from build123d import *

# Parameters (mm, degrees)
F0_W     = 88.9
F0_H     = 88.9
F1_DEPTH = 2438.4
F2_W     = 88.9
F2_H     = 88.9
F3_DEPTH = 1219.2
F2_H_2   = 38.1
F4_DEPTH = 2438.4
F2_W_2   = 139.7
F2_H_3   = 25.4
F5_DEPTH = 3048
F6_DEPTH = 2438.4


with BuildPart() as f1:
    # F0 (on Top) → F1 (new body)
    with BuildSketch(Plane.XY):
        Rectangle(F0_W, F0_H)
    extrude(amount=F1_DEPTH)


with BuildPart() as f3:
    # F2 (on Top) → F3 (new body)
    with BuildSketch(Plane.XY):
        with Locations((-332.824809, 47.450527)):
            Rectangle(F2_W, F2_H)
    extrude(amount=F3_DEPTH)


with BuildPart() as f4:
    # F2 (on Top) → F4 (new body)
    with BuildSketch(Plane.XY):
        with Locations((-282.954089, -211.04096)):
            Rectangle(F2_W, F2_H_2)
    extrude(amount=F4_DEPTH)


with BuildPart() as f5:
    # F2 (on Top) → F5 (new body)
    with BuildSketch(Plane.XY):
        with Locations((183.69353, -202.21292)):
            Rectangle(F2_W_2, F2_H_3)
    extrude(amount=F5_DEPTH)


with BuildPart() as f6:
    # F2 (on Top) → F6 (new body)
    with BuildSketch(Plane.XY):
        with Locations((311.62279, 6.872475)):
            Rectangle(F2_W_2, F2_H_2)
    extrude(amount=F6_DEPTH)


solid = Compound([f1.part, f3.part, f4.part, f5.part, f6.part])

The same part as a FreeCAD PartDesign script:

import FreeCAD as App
import Part
import Sketcher
Q = App.Units.Quantity


def add_polygon(sketch, points):
    """Adds a closed chain of lines whose ends are joined by coincident constraints."""
    first, n = sketch.GeometryCount, len(points)
    for a, b in zip(points, points[1:] + points[:1]):
        sketch.addGeometry(Part.LineSegment(App.Vector(*a, 0), App.Vector(*b, 0)), False)
    for i in range(n):
        sketch.addConstraint(Sketcher.Constraint("Coincident", first + i, 2, first + (i + 1) % n, 1))

doc = App.newDocument("Part")
params = doc.addObject("Spreadsheet::Sheet", "Params")
for row, (alias, value) in enumerate([
    ("sketch1_width", "3.5 in"),
    ("pad1_length", "96 in"),
    ("sketch2_width", "3.5 in"),
    ("pad2_length", "48 in"),
    ("sketch3_width", "3.5 in"),
    ("sketch3_height", "1.5 in"),
    ("pad3_length", "96 in"),
    ("sketch4_height", "1 in"),
    ("sketch4_width", "5.5 in"),
    ("pad4_length", "120 in"),
    ("sketch5_width", "5.5 in"),
    ("sketch5_height", "1.5 in"),
    ("pad5_length", "96 in"),
], start=1):
    params.set(f"A{row}", alias)
    params.set(f"B{row}", "=" + value)
    params.setAlias(f"B{row}", alias)

body = doc.addObject("PartDesign::Body", "Body")

# Sketch on XY plane
sketch1 = body.newObject("Sketcher::SketchObject", "Sketch")
sketch1.AttachmentSupport = (doc.getObject("XY_Plane"), [""])
sketch1.MapMode = "FlatFace"
add_polygon(sketch1, [(-44.45, 44.45), (-44.45, -44.45), (44.45, -44.45), (44.45, 44.45)])  # lines 0-3
sketch1.addConstraint([
    Sketcher.Constraint("Vertical", 0),
    Sketcher.Constraint("Horizontal", 1),
    Sketcher.Constraint("Vertical", 2),
    Sketcher.Constraint("Horizontal", 3),
    Sketcher.Constraint("Symmetric", 0, 2, 2, 2, -1, 1),
    Sketcher.Constraint("Equal", 3, 0),
    Sketcher.Constraint("DistanceX", 1, 1, 1, 2, Q("3.5 in")),
])
sketch1.setExpression("Constraints[10]", "Params.sketch1_width")
pad1 = body.newObject("PartDesign::Pad", "Pad")
pad1.Profile = sketch1
pad1.setExpression("Length", "Params.pad1_length")
body2 = doc.addObject("PartDesign::Body", "Body001")

# Sketch on XY plane
sketch2 = body2.newObject("Sketcher::SketchObject", "Sketch001")
sketch2.AttachmentSupport = (doc.getObject("XY_Plane001"), [""])
sketch2.MapMode = "FlatFace"
add_polygon(sketch2, [(-377.274809, 91.900527), (-377.274809, 3.000527), (-288.374809, 3.000527), (-288.374809, 91.900527)])  # lines 0-3
sketch2.addConstraint([
    Sketcher.Constraint("Vertical", 0),
    Sketcher.Constraint("Horizontal", 1),
    Sketcher.Constraint("Vertical", 2),
    Sketcher.Constraint("Horizontal", 3),
    Sketcher.Constraint("Equal", 3, 0),
    Sketcher.Constraint("DistanceX", 1, 1, 1, 2, Q("3.5 in")),
    Sketcher.Constraint("DistanceX", 0, 2, -1, 1, Q("377.274809 mm")),
    Sketcher.Constraint("DistanceY", -1, 1, 0, 2, Q("3.000527 mm")),
])
sketch2.setExpression("Constraints[9]", "Params.sketch2_width")
pad2 = body2.newObject("PartDesign::Pad", "Pad001")
pad2.Profile = sketch2
pad2.setExpression("Length", "Params.pad2_length")
body3 = doc.addObject("PartDesign::Body", "Body002")

# Sketch on XY plane
sketch3 = body3.newObject("Sketcher::SketchObject", "Sketch002")
sketch3.AttachmentSupport = (doc.getObject("XY_Plane002"), [""])
sketch3.MapMode = "FlatFace"
add_polygon(sketch3, [(-327.404089, -191.99096), (-327.404089, -230.09096), (-238.504089, -230.09096), (-238.504089, -191.99096)])  # lines 0-3
sketch3.addConstraint([
    Sketcher.Constraint("Vertical", 0),
    Sketcher.Constraint("Horizontal", 1),
    Sketcher.Constraint("Vertical", 2),
    Sketcher.Constraint("Horizontal", 3),
    Sketcher.Constraint("DistanceX", 1, 1, 1, 2, Q("3.5 in")),
    Sketcher.Constraint("DistanceY", 0, 2, 0, 1, Q("1.5 in")),
    Sketcher.Constraint("DistanceX", 0, 2, -1, 1, Q("327.404089 mm")),
    Sketcher.Constraint("DistanceY", 0, 2, -1, 1, Q("230.09096 mm")),
])
sketch3.setExpression("Constraints[8]", "Params.sketch3_width")
sketch3.setExpression("Constraints[9]", "Params.sketch3_height")
pad3 = body3.newObject("PartDesign::Pad", "Pad002")
pad3.Profile = sketch3
pad3.setExpression("Length", "Params.pad3_length")
body4 = doc.addObject("PartDesign::Body", "Body003")

# Sketch on XY plane
sketch4 = body4.newObject("Sketcher::SketchObject", "Sketch003")
sketch4.AttachmentSupport = (doc.getObject("XY_Plane003"), [""])
sketch4.MapMode = "FlatFace"
add_polygon(sketch4, [(113.84353, -189.51292), (113.84353, -214.91292), (253.54353, -214.91292), (253.54353, -189.51292)])  # lines 0-3
sketch4.addConstraint([
    Sketcher.Constraint("Vertical", 0),
    Sketcher.Constraint("Horizontal", 1),
    Sketcher.Constraint("Vertical", 2),
    Sketcher.Constraint("Horizontal", 3),
    Sketcher.Constraint("DistanceY", 0, 2, 0, 1, Q("1 in")),
    Sketcher.Constraint("DistanceX", 1, 1, 1, 2, Q("5.5 in")),
    Sketcher.Constraint("DistanceX", -1, 1, 0, 2, Q("113.84353 mm")),
    Sketcher.Constraint("DistanceY", 0, 2, -1, 1, Q("214.91292 mm")),
])
sketch4.setExpression("Constraints[8]", "Params.sketch4_height")
sketch4.setExpression("Constraints[9]", "Params.sketch4_width")
pad4 = body4.newObject("PartDesign::Pad", "Pad003")
pad4.Profile = sketch4
pad4.setExpression("Length", "Params.pad4_length")
body5 = doc.addObject("PartDesign::Body", "Body004")

# Sketch on XY plane
sketch5 = body5.newObject("Sketcher::SketchObject", "Sketch004")
sketch5.AttachmentSupport = (doc.getObject("XY_Plane004"), [""])
sketch5.MapMode = "FlatFace"
add_polygon(sketch5, [(241.77279, 25.922475), (241.77279, -12.177525), (381.47279, -12.177525), (381.47279, 25.922475)])  # lines 0-3
sketch5.addConstraint([
    Sketcher.Constraint("Vertical", 0),
    Sketcher.Constraint("Horizontal", 1),
    Sketcher.Constraint("Vertical", 2),
    Sketcher.Constraint("Horizontal", 3),
    Sketcher.Constraint("DistanceX", 1, 1, 1, 2, Q("5.5 in")),
    Sketcher.Constraint("DistanceY", 0, 2, 0, 1, Q("1.5 in")),
    Sketcher.Constraint("DistanceX", -1, 1, 0, 2, Q("241.77279 mm")),
    Sketcher.Constraint("DistanceY", 0, 2, -1, 1, Q("12.177525 mm")),
])
sketch5.setExpression("Constraints[8]", "Params.sketch5_width")
sketch5.setExpression("Constraints[9]", "Params.sketch5_height")
pad5 = body5.newObject("PartDesign::Pad", "Pad004")
pad5.Profile = sketch5
pad5.setExpression("Length", "Params.pad5_length")

doc.recompute()
